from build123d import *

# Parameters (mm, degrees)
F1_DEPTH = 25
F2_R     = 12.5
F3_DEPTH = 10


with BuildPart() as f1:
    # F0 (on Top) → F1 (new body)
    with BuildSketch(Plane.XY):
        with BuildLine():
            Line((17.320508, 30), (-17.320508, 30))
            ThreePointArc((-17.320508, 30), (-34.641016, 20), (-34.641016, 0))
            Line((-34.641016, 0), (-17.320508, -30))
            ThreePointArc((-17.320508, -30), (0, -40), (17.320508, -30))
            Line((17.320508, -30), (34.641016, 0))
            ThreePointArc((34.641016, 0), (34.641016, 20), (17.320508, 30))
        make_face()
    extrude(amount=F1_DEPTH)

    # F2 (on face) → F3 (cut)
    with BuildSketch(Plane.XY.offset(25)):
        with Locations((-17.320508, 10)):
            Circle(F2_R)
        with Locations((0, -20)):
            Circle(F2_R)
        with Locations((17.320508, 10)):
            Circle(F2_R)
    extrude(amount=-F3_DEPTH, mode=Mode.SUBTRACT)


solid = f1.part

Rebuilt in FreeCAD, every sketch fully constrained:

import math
import FreeCAD as App
import Part
import Sketcher
from FreeCAD import Vector

doc = App.newDocument("Part")
params = doc.addObject("Spreadsheet::Sheet", "Params")
for row, (alias, value) in enumerate([
    ("sketch1_radius", "20 mm"),
    ("pad1_length", "25 mm"),
    ("sketch2_diameter", "25 mm"),
    ("pocket1_length", "10 mm"),
], start=1):
    params.set(f"A{row}", alias)
    params.set(f"B{row}", "=" + value)
    params.setAlias(f"B{row}", alias)

body = doc.addObject("PartDesign::Body", "Body")

sketch1 = body.newObject("Sketcher::SketchObject", "Sketch")
sketch1.AttachmentSupport = (doc.getObject("XY_Plane"), [""])
sketch1.MapMode = "FlatFace"
sketch1.addGeometry([
    Part.LineSegment(Vector(17, 30, 0), Vector(-17, 30, 0)),
    Part.ArcOfCircle(Part.Circle(Vector(-17, 10, 0), Vector(0, 0, 1), 20), math.radians(90), math.radians(210)),
    Part.LineSegment(Vector(-35, 0, 0), Vector(-17, -30, 0)),
    Part.ArcOfCircle(Part.Circle(Vector(0, -20, 0), Vector(0, 0, 1), 20), math.radians(-150), math.radians(-30)),
    Part.LineSegment(Vector(17, -30, 0), Vector(35, 0, 0)),
    Part.ArcOfCircle(Part.Circle(Vector(17, 10, 0), Vector(0, 0, 1), 20), math.radians(-30), math.radians(90)),
], False)
sketch1.addConstraint([
    Sketcher.Constraint("Tangent", 0, 2, 1, 1),
    Sketcher.Constraint("Tangent", 1, 2, 2, 1),
    Sketcher.Constraint("Tangent", 2, 2, 3, 1),
    Sketcher.Constraint("Tangent", 3, 2, 4, 1),
    Sketcher.Constraint("Tangent", 4, 2, 5, 1),
    Sketcher.Constraint("Tangent", 5, 2, 0, 1),
    Sketcher.Constraint("Horizontal", 0),
    Sketcher.Constraint("Equal", 1, 3),
    Sketcher.Constraint("Equal", 3, 5),
    Sketcher.Constraint("Symmetric", 0, 2, 3, 2, -1, 1),
    Sketcher.Constraint("Symmetric", 1, 2, 4, 2, -1, 1),
    Sketcher.Constraint("PointOnObject", 3, 3, -2),
    Sketcher.Constraint("Radius", 1, 20.0),
])
sketch1.setExpression("Constraints[12]", "Params.sketch1_radius")
pad1 = body.newObject("PartDesign::Pad", "Pad")
pad1.Profile = sketch1
pad1.setExpression("Length", "Params.pad1_length")

sketch2 = body.newObject("Sketcher::SketchObject", "Sketch001")
sketch2.AttachmentSupport = (doc.getObject("XY_Plane"), [""])
sketch2.MapMode = "FlatFace"
sketch2.AttachmentOffset = App.Placement(Vector(0, 0, 25), App.Rotation())
sketch2.addGeometry([
    Part.Circle(Vector(-17, 10, 0), Vector(0, 0, 1), 12),
    Part.Circle(Vector(0, -20, 0), Vector(0, 0, 1), 12),
    Part.Circle(Vector(17, 10, 0), Vector(0, 0, 1), 12),
], False)
sketch2.addConstraint([
    Sketcher.Constraint("Equal", 0, 1),
    Sketcher.Constraint("Equal", 1, 2),
    Sketcher.Constraint("Symmetric", 0, 3, 2, 3, -2),
    Sketcher.Constraint("PointOnObject", 1, 3, -2),
    Sketcher.Constraint("Diameter", 0, 25.0),
    Sketcher.Constraint("DistanceY", -1, 1, 0, 3, 10.0),
    Sketcher.Constraint("DistanceY", 1, 3, -1, 1, 20.0),
    Sketcher.Constraint("DistanceX", 0, 3, -1, 1, 17.320508),
])
sketch2.setExpression("Constraints[4]", "Params.sketch2_diameter")
pocket1 = body.newObject("PartDesign::Pocket", "Pocket")
pocket1.Profile = sketch2
pocket1.setExpression("Length", "Params.pocket1_length")

doc.recompute()
